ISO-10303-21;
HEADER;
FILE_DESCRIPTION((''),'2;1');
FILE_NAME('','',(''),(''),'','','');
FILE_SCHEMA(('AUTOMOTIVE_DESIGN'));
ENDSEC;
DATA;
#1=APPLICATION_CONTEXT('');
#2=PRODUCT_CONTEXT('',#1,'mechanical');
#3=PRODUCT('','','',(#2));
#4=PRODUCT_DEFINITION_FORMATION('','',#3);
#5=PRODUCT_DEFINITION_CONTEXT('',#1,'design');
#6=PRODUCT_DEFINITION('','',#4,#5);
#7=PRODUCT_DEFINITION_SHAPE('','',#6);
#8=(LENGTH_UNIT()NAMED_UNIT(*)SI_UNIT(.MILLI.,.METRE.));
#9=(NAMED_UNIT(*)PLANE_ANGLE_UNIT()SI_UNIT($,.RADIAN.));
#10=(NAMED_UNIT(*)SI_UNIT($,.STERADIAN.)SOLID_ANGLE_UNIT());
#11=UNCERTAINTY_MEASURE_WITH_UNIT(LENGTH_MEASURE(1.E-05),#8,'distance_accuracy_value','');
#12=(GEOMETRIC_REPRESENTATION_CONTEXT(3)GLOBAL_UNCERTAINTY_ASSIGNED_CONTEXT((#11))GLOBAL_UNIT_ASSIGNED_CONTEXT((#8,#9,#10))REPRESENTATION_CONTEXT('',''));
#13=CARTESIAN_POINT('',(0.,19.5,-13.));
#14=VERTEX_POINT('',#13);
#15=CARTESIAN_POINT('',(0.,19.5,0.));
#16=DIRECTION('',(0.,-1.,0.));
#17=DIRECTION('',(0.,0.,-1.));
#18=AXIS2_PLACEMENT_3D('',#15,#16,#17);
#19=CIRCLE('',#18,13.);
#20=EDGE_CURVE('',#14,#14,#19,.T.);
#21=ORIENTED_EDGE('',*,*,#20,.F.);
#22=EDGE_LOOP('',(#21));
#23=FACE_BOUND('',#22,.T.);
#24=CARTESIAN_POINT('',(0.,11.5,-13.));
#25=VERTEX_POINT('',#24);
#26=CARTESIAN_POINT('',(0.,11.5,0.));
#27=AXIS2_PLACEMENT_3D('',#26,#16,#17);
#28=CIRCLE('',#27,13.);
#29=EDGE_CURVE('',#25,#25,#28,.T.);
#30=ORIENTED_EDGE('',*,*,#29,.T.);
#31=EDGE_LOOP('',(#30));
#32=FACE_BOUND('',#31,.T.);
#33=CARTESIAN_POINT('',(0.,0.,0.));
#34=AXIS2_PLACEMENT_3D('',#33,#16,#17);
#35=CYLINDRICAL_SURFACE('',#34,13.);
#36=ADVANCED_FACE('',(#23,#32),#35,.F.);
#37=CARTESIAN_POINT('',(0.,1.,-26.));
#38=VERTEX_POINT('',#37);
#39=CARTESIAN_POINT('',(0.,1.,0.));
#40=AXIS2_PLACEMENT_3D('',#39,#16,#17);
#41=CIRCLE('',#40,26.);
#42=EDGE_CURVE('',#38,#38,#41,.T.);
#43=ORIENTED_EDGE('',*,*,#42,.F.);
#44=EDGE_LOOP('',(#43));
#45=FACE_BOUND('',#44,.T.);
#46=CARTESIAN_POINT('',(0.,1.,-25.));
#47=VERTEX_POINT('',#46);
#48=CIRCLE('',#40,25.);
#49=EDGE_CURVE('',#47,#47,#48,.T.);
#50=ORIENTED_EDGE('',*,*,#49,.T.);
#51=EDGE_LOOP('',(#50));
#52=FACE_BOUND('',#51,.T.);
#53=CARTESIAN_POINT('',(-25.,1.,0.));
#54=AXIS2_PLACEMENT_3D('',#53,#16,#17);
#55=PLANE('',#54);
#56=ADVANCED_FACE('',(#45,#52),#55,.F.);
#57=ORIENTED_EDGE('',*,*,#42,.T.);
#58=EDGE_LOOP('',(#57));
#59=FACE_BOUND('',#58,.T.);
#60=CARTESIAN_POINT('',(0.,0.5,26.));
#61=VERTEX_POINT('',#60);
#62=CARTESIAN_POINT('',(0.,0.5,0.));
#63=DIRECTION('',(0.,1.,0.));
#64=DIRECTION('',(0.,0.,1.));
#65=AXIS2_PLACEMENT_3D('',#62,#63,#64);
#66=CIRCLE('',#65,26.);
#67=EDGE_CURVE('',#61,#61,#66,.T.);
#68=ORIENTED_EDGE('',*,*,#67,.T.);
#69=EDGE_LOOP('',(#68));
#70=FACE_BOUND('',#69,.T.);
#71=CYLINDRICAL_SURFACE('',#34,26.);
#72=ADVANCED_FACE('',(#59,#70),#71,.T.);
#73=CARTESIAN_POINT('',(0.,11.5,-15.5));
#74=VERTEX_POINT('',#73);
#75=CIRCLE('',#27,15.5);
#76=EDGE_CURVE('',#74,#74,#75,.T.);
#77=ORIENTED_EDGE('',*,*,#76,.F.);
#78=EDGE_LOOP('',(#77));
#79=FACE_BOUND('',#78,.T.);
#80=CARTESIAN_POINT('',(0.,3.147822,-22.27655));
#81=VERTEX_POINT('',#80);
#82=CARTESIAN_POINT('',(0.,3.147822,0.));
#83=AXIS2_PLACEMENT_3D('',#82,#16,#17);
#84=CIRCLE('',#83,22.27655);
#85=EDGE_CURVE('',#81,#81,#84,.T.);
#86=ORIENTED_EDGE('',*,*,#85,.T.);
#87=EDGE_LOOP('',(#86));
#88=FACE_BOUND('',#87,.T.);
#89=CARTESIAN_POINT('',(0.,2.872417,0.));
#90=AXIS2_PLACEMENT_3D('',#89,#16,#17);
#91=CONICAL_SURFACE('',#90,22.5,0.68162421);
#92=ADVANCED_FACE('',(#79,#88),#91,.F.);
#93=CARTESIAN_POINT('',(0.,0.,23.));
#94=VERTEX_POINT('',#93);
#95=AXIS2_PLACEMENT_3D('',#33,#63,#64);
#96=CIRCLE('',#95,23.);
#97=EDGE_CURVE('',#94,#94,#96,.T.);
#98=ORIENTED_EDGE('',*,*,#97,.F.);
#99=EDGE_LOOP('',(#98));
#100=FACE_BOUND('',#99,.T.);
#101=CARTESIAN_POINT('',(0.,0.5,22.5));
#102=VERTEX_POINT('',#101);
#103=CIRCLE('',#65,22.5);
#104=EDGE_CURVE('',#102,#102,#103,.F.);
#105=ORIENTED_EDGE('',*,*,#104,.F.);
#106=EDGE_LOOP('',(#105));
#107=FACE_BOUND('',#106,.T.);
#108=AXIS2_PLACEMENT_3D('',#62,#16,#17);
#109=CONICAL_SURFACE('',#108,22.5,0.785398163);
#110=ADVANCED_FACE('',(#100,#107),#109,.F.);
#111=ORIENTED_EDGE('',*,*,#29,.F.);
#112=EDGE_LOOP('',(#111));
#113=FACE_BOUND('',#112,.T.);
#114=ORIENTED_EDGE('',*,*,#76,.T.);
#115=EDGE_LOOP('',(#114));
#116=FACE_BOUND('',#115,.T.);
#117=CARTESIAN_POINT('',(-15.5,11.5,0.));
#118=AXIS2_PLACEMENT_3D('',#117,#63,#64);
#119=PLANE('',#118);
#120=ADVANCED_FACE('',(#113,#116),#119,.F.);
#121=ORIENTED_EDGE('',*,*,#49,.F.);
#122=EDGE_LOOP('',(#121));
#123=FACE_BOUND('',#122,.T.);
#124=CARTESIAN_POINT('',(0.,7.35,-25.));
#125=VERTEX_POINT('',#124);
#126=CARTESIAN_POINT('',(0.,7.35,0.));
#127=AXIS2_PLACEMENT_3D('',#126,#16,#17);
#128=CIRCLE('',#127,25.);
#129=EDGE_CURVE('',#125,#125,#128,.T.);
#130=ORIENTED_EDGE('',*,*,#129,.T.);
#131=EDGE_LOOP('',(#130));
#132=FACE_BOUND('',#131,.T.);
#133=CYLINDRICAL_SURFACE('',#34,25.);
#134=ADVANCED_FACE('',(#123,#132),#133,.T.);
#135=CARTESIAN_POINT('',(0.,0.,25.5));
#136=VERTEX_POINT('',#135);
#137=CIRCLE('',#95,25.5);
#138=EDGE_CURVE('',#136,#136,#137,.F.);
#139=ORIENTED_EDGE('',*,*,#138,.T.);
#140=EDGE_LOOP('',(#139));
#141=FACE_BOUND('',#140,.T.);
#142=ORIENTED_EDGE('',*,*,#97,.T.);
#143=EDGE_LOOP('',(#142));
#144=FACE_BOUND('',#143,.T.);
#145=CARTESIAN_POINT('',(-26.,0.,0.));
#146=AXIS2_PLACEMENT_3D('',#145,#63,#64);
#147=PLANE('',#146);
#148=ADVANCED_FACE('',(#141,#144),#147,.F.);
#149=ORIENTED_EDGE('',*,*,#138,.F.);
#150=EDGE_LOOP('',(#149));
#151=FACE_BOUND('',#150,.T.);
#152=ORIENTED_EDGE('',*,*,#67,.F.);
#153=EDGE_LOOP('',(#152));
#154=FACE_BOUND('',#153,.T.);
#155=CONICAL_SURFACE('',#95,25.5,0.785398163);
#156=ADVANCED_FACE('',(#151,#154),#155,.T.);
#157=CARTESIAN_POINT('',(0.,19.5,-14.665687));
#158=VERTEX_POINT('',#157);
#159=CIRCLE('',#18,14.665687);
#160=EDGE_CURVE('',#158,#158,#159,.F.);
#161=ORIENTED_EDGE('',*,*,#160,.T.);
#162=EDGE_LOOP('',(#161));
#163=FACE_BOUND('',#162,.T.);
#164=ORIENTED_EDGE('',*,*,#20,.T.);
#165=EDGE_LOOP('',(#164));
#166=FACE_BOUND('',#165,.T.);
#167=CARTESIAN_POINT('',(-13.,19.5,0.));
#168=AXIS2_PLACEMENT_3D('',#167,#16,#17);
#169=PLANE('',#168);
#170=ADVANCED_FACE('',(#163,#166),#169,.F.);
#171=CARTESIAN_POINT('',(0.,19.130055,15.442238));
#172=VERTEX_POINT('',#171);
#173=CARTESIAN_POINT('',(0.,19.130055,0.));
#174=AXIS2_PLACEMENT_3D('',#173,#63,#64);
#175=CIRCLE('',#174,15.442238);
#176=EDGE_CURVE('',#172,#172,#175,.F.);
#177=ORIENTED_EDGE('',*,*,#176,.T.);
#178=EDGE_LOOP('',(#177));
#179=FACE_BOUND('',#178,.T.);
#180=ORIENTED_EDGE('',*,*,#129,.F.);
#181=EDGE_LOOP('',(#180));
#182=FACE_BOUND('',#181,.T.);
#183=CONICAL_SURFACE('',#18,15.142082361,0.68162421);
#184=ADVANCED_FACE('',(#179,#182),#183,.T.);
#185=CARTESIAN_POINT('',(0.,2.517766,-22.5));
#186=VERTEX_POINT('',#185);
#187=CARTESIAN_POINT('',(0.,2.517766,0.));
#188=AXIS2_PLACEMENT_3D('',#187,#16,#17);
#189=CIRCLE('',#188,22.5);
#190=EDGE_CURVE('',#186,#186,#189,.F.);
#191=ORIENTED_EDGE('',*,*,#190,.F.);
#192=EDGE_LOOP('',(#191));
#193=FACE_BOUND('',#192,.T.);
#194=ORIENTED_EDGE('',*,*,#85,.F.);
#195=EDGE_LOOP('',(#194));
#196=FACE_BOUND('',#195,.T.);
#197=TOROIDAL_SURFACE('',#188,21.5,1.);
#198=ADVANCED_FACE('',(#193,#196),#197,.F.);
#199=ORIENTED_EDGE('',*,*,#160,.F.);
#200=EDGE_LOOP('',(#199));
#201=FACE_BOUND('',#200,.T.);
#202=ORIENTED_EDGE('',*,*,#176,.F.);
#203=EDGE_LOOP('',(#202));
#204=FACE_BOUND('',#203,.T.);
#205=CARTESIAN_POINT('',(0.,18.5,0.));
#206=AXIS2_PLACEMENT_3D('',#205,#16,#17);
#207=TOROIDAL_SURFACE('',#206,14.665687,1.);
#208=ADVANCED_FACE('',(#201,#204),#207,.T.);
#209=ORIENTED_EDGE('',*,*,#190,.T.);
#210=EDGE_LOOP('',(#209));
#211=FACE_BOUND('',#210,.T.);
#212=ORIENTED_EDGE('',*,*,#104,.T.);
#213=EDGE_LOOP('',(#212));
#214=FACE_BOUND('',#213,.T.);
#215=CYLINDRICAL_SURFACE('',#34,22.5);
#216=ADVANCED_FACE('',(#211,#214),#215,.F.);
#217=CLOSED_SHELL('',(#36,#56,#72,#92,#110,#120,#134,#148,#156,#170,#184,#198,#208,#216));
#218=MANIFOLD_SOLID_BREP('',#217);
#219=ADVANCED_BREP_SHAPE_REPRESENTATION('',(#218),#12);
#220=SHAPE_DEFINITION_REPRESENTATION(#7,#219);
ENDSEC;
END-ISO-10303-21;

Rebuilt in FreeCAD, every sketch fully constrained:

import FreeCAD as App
import Part
import Sketcher
from FreeCAD import Vector
Q = App.Units.Quantity


def edges_at(feature, points):
    """Names of the edges that pass closest to the given points."""
    edges = feature.Shape.Edges
    near = lambda p: min(range(len(edges)), key=lambda i: edges[i].distToShape(Part.Vertex(*p))[0])
    return sorted({f"Edge{near(p) + 1}" for p in points})


def add_polygon(sketch, points):
    """Adds a closed chain of lines whose ends are joined by coincident constraints."""
    first, n = sketch.GeometryCount, len(points)
    for a, b in zip(points, points[1:] + points[:1]):
        sketch.addGeometry(Part.LineSegment(App.Vector(*a, 0), App.Vector(*b, 0)), False)
    for i in range(n):
        sketch.addConstraint(Sketcher.Constraint("Coincident", first + i, 2, first + (i + 1) % n, 1))

doc = App.newDocument("Part")
body = doc.addObject("PartDesign::Body", "Body")

# Sketch on XY plane
sketch1 = body.newObject("Sketcher::SketchObject", "Sketch")
sketch1.AttachmentSupport = (doc.getObject("XY_Plane"), [""])
sketch1.MapMode = "FlatFace"
add_polygon(sketch1, [(-26, 0), (-22.5, 0), (-22.5, 2.9), (-15.5, 11.5), (-13, 11.5), (-13, 19.5), (-15.1, 19.5), (-25, 7.3), (-25, 1), (-26, 1)])  # lines 0-9
sketch1.addConstraint([
    Sketcher.Constraint("Horizontal", 0),
    Sketcher.Constraint("Vertical", 1),
    Sketcher.Constraint("Horizontal", 3),
    Sketcher.Constraint("Vertical", 4),
    Sketcher.Constraint("Horizontal", 5),
    Sketcher.Constraint("Vertical", 7),
    Sketcher.Constraint("Horizontal", 8),
    Sketcher.Constraint("Vertical", 9),
    Sketcher.Constraint("PointOnObject", 0, 2, -1),
    Sketcher.Constraint("Parallel", 2, 6),
    Sketcher.Constraint("Equal", 8, 9),
    Sketcher.Constraint("DistanceX", 8, 2, 8, 1, Q("1 mm")),
    Sketcher.Constraint("DistanceY", 4, 1, 4, 2, Q("8 mm")),
    Sketcher.Constraint("DistanceX", 0, 1, 0, 2, Q("3.5 mm")),
    Sketcher.Constraint("DistanceX", 3, 1, 3, 2, Q("2.5 mm")),
    Sketcher.Constraint("DistanceX", 3, 2, -1, 1, Q("13 mm")),
    Sketcher.Constraint("DistanceX", 6, 2, -1, 1, Q("25 mm")),
    Sketcher.Constraint("DistanceY", 7, 2, 7, 1, Q("6.35 mm")),
    Sketcher.Constraint("DistanceY", -1, 1, 2, 2, Q("11.5 mm")),
    Sketcher.Constraint("Distance", 2, Q("11.110139 mm")),
])
revolution = body.newObject("PartDesign::Revolution", "Revolution")
revolution.Profile = sketch1
revolution.ReferenceAxis = (sketch1, ["V_Axis"])
revolution.Angle = 360
doc.recompute()

fillet = body.newObject("PartDesign::Fillet", "Fillet")
fillet.Base = (revolution, edges_at(revolution, [(0, 2.872, 22.5), (0, 19.5, 15.142)]))
fillet.Radius = 1
doc.recompute()

chamfer = body.newObject("PartDesign::Chamfer", "Chamfer")
chamfer.Base = (fillet, edges_at(fillet, [(0, 0, 22.5), (0, 0, 26)]))
chamfer.Size = 0.5

doc.recompute()
